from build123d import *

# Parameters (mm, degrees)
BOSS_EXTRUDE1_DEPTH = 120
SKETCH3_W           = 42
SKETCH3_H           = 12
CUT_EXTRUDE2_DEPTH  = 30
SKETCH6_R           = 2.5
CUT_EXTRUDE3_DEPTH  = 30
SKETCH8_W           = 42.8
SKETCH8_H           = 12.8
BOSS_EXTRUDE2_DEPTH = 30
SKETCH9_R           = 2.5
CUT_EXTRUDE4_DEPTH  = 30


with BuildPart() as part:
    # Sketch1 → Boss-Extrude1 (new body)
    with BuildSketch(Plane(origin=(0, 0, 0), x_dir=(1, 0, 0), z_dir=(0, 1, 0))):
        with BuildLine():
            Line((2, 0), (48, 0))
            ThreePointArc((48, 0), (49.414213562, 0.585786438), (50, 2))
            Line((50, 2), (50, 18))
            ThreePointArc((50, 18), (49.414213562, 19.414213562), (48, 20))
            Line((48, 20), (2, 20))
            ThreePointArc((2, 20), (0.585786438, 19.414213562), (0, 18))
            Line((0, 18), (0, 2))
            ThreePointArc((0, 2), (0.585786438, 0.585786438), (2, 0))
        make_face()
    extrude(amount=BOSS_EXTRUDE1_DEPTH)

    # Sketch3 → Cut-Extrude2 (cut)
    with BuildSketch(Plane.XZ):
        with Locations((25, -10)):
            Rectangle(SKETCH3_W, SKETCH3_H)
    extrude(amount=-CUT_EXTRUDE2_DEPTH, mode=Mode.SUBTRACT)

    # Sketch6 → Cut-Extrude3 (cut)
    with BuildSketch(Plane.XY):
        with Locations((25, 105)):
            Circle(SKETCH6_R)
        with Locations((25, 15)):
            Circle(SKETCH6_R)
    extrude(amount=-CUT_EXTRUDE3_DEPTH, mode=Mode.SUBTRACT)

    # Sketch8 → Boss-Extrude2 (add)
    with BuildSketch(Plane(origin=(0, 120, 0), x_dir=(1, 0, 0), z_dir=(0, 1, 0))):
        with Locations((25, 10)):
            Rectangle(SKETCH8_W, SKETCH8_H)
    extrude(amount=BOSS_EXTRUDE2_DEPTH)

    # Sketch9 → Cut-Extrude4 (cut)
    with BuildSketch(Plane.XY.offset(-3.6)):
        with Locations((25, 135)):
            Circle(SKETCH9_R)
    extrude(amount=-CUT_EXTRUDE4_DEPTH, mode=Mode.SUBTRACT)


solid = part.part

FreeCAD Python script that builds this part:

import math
import FreeCAD as App
import Part
import Sketcher
from FreeCAD import Vector

doc = App.newDocument("Part")
params = doc.addObject("Spreadsheet::Sheet", "Params")
for row, (alias, value) in enumerate([
    ("sketch1_radius", "2 mm"),
    ("sketch1_width", "46 mm"),
    ("sketch1_height", "16 mm"),
    ("pad1_length", "120 mm"),
    ("sketch2_width", "42 mm"),
    ("sketch2_height", "12 mm"),
    ("pocket1_length", "30 mm"),
    ("sketch3_diameter", "5 mm"),
    ("pocket2_length", "30 mm"),
    ("sketch4_width", "42.8 mm"),
    ("sketch4_height", "12.8 mm"),
    ("pad2_length", "30 mm"),
    ("sketch5_diameter", "5 mm"),
    ("pocket3_length", "30 mm"),
], start=1):
    params.set(f"A{row}", alias)
    params.set(f"B{row}", "=" + value)
    params.setAlias(f"B{row}", alias)

body = doc.addObject("PartDesign::Body", "Body")

# Sketch on XZ plane
sketch1 = body.newObject("Sketcher::SketchObject", "Sketch")
sketch1.AttachmentSupport = (doc.getObject("XZ_Plane"), [""])
sketch1.MapMode = "FlatFace"
sketch1.addGeometry([
    Part.LineSegment(Vector(2, 0, 0), Vector(48, 0, 0)),  # 0
    Part.ArcOfCircle(Part.Circle(Vector(48, -2, 0), Vector(0, 0, 1), 2), math.radians(0), math.radians(90)),  # 1
    Part.LineSegment(Vector(50, -2, 0), Vector(50, -18, 0)),  # 2
    Part.ArcOfCircle(Part.Circle(Vector(48, -18, 0), Vector(0, 0, 1), 2), math.radians(-90), math.radians(0)),  # 3
    Part.LineSegment(Vector(48, -20, 0), Vector(2, -20, 0)),  # 4
    Part.ArcOfCircle(Part.Circle(Vector(2, -18, 0), Vector(0, 0, 1), 2), math.radians(-180), math.radians(-90)),  # 5
    Part.LineSegment(Vector(0, -18, 0), Vector(0, -2, 0)),  # 6
    Part.ArcOfCircle(Part.Circle(Vector(2, -2, 0), Vector(0, 0, 1), 2), math.radians(90), math.radians(180)),  # 7
], False)
sketch1.addConstraint([
    Sketcher.Constraint("Tangent", 0, 2, 1, 2),
    Sketcher.Constraint("Tangent", 1, 1, 2, 1),
    Sketcher.Constraint("Tangent", 2, 2, 3, 2),
    Sketcher.Constraint("Tangent", 3, 1, 4, 1),
    Sketcher.Constraint("Tangent", 4, 2, 5, 2),
    Sketcher.Constraint("Tangent", 5, 1, 6, 1),
    Sketcher.Constraint("Tangent", 6, 2, 7, 2),
    Sketcher.Constraint("Tangent", 7, 1, 0, 1),
    Sketcher.Constraint("Horizontal", 0),
    Sketcher.Constraint("Vertical", 2),
    Sketcher.Constraint("Horizontal", 4),
    Sketcher.Constraint("Vertical", 6),
    Sketcher.Constraint("Equal", 1, 3),
    Sketcher.Constraint("Equal", 3, 5),
    Sketcher.Constraint("Equal", 5, 7),
    Sketcher.Constraint("PointOnObject", 0, 2, -1),
    Sketcher.Constraint("PointOnObject", 5, 1, -2),
    Sketcher.Constraint("Radius", 1, 2.0),
    Sketcher.Constraint("DistanceX", 0, 1, 0, 2, 46.0),
    Sketcher.Constraint("DistanceY", 2, 2, 2, 1, 16.0),
])
sketch1.setExpression("Constraints[17]", "Params.sketch1_radius")
sketch1.setExpression("Constraints[18]", "Params.sketch1_width")
sketch1.setExpression("Constraints[19]", "Params.sketch1_height")
pad1 = body.newObject("PartDesign::Pad", "Pad")
pad1.Profile = sketch1
pad1.setExpression("Length", "Params.pad1_length")
pad1.Reversed = True

# Sketch on XZ plane
sketch2 = body.newObject("Sketcher::SketchObject", "Sketch001")
sketch2.AttachmentSupport = (doc.getObject("XZ_Plane"), [""])
sketch2.MapMode = "FlatFace"
sketch2.addGeometry([
    Part.LineSegment(Vector(4, -4, 0), Vector(4, -16, 0)),
    Part.LineSegment(Vector(4, -16, 0), Vector(46, -16, 0)),
    Part.LineSegment(Vector(46, -16, 0), Vector(46, -4, 0)),
    Part.LineSegment(Vector(46, -4, 0), Vector(4, -4, 0)),
], False)
sketch2.addConstraint([
    Sketcher.Constraint("Coincident", 0, 2, 1, 1),
    Sketcher.Constraint("Coincident", 1, 2, 2, 1),
    Sketcher.Constraint("Coincident", 2, 2, 3, 1),
    Sketcher.Constraint("Coincident", 3, 2, 0, 1),
    Sketcher.Constraint("Vertical", 0),
    Sketcher.Constraint("Horizontal", 1),
    Sketcher.Constraint("Vertical", 2),
    Sketcher.Constraint("Horizontal", 3),
    Sketcher.Constraint("DistanceX", 1, 1, 1, 2, 42.0),
    Sketcher.Constraint("DistanceY", 0, 2, 0, 1, 12.0),
    Sketcher.Constraint("DistanceX", -1, 1, 0, 2, 4.0),
    Sketcher.Constraint("DistanceY", 0, 2, -1, 1, 16.0),
])
sketch2.setExpression("Constraints[8]", "Params.sketch2_width")
sketch2.setExpression("Constraints[9]", "Params.sketch2_height")
pocket1 = body.newObject("PartDesign::Pocket", "Pocket")
pocket1.Profile = sketch2
pocket1.setExpression("Length", "Params.pocket1_length")

# Sketch on XY plane
sketch3 = body.newObject("Sketcher::SketchObject", "Sketch002")
sketch3.AttachmentSupport = (doc.getObject("XY_Plane"), [""])
sketch3.MapMode = "FlatFace"
sketch3.addGeometry([
    Part.Circle(Vector(25, 105, 0), Vector(0, 0, 1), 2.5),
    Part.Circle(Vector(25, 15, 0), Vector(0, 0, 1), 2.5),
], False)
sketch3.addConstraint([
    Sketcher.Constraint("Equal", 0, 1),
    Sketcher.Constraint("Vertical", 0, 3, 1, 3),
    Sketcher.Constraint("Diameter", 0, 5.0),
    Sketcher.Constraint("DistanceX", -1, 1, 0, 3, 25.0),
    Sketcher.Constraint("DistanceY", -1, 1, 0, 3, 105.0),
    Sketcher.Constraint("DistanceY", -1, 1, 1, 3, 15.0),
])
sketch3.setExpression("Constraints[2]", "Params.sketch3_diameter")
pocket2 = body.newObject("PartDesign::Pocket", "Pocket001")
pocket2.Profile = sketch3
pocket2.setExpression("Length", "Params.pocket2_length")

# Sketch on XZ plane
sketch4 = body.newObject("Sketcher::SketchObject", "Sketch003")
sketch4.AttachmentSupport = (doc.getObject("XZ_Plane"), [""])
sketch4.MapMode = "FlatFace"
sketch4.AttachmentOffset = App.Placement(Vector(0, 0, -120), App.Rotation())
sketch4.addGeometry([
    Part.LineSegment(Vector(3.6, -16.4, 0), Vector(3.6, -3.6, 0)),
    Part.LineSegment(Vector(3.6, -3.6, 0), Vector(46.4, -3.6, 0)),
    Part.LineSegment(Vector(46.4, -3.6, 0), Vector(46.4, -16.4, 0)),
    Part.LineSegment(Vector(46.4, -16.4, 0), Vector(3.6, -16.4, 0)),
], False)
sketch4.addConstraint([
    Sketcher.Constraint("Coincident", 0, 2, 1, 1),
    Sketcher.Constraint("Coincident", 1, 2, 2, 1),
    Sketcher.Constraint("Coincident", 2, 2, 3, 1),
    Sketcher.Constraint("Coincident", 3, 2, 0, 1),
    Sketcher.Constraint("Vertical", 0),
    Sketcher.Constraint("Horizontal", 1),
    Sketcher.Constraint("Vertical", 2),
    Sketcher.Constraint("Horizontal", 3),
    Sketcher.Constraint("DistanceX", 1, 1, 1, 2, 42.8),
    Sketcher.Constraint("DistanceY", 0, 1, 0, 2, 12.8),
    Sketcher.Constraint("DistanceX", -1, 1, 0, 2, 3.6),
    Sketcher.Constraint("DistanceY", 0, 2, -1, 1, 3.6),
])
sketch4.setExpression("Constraints[8]", "Params.sketch4_width")
sketch4.setExpression("Constraints[9]", "Params.sketch4_height")
pad2 = body.newObject("PartDesign::Pad", "Pad001")
pad2.Profile = sketch4
pad2.setExpression("Length", "Params.pad2_length")
pad2.Reversed = True

# Sketch on XY plane
sketch5 = body.newObject("Sketcher::SketchObject", "Sketch004")
sketch5.AttachmentSupport = (doc.getObject("XY_Plane"), [""])
sketch5.MapMode = "FlatFace"
sketch5.AttachmentOffset = App.Placement(Vector(0, 0, -3.6), App.Rotation())
sketch5.addGeometry(Part.Circle(Vector(25, 135, 0), Vector(0, 0, 1), 2.5), False)
sketch5.addConstraint([
    Sketcher.Constraint("Diameter", 0, 5.0),
    Sketcher.Constraint("DistanceX", -1, 1, 0, 3, 25.0),
    Sketcher.Constraint("DistanceY", -1, 1, 0, 3, 135.0),
])
sketch5.setExpression("Constraints[0]", "Params.sketch5_diameter")
pocket3 = body.newObject("PartDesign::Pocket", "Pocket002")
pocket3.Profile = sketch5
pocket3.setExpression("Length", "Params.pocket3_length")

doc.recompute()
